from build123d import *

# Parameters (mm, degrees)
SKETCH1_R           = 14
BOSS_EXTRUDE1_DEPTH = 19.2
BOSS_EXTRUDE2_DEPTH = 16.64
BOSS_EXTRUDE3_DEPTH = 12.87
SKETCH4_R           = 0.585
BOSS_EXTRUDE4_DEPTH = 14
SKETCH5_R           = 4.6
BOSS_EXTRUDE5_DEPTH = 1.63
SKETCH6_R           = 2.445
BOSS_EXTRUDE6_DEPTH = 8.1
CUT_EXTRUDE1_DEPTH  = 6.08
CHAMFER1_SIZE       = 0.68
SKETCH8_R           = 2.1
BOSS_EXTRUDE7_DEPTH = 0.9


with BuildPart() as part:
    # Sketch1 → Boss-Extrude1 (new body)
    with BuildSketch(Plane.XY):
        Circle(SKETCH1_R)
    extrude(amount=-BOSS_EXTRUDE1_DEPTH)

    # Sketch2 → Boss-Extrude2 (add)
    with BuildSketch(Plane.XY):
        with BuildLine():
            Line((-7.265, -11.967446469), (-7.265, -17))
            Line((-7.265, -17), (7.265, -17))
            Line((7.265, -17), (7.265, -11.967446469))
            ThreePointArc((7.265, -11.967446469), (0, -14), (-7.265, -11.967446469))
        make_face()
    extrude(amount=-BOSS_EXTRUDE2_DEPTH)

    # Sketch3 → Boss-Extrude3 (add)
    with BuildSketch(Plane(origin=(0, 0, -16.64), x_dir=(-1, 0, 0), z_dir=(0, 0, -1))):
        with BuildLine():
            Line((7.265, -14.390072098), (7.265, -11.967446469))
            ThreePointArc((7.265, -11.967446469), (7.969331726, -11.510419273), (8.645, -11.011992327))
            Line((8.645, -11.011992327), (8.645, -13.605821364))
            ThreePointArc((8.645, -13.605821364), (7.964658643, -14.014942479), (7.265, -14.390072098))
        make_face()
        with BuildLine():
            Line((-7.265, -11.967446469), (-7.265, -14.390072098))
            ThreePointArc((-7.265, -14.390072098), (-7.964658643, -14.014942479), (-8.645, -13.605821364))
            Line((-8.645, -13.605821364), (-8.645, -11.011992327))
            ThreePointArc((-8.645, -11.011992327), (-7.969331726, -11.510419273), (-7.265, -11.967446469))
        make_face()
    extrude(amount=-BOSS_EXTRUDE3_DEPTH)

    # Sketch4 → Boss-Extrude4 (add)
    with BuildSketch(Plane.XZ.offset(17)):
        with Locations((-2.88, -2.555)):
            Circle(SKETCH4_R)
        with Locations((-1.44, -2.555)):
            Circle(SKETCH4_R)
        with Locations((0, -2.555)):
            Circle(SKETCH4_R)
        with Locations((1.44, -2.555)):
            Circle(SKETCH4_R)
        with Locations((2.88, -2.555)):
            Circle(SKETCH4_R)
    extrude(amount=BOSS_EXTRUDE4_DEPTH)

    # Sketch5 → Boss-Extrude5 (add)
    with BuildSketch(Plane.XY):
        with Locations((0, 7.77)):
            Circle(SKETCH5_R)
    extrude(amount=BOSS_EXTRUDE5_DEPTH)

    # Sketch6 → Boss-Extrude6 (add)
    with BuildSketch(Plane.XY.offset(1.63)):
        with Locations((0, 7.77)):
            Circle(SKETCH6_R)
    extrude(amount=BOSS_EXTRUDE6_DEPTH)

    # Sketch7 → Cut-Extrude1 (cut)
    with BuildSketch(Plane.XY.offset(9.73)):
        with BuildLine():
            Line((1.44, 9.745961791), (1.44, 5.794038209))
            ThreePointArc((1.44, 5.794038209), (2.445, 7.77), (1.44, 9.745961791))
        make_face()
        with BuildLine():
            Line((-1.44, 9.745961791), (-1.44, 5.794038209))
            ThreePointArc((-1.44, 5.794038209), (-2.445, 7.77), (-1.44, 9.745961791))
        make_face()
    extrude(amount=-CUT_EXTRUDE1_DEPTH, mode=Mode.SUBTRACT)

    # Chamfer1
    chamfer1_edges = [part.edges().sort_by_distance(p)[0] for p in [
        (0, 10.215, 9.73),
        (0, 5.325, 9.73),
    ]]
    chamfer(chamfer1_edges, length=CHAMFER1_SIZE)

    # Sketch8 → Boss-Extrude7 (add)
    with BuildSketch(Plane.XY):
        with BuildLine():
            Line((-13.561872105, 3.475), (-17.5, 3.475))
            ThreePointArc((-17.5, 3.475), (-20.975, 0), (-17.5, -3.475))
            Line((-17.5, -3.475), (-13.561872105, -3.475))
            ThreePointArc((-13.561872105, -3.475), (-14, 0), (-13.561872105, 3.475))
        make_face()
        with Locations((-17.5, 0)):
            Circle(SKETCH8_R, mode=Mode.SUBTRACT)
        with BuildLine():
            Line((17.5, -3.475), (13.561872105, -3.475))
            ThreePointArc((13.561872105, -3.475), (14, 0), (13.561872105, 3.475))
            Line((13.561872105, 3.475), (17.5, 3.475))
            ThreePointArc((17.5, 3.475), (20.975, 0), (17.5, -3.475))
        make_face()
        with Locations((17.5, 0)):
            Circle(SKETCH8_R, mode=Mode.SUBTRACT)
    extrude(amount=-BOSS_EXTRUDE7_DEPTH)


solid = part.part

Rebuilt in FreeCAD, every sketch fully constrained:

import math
import FreeCAD as App
import Part
import Sketcher
Q = App.Units.Quantity


def edges_at(feature, points):
    """Names of the edges that pass closest to the given points."""
    edges = feature.Shape.Edges
    near = lambda p: min(range(len(edges)), key=lambda i: edges[i].distToShape(Part.Vertex(*p))[0])
    return sorted({f"Edge{near(p) + 1}" for p in points})

doc = App.newDocument("Part")
body = doc.addObject("PartDesign::Body", "Body")

sketch1 = body.newObject("Sketcher::SketchObject", "Sketch")
sketch1.AttachmentSupport = (doc.getObject("XY_Plane"), [""])
sketch1.MapMode = "FlatFace"
sketch1.addGeometry(Part.Circle(App.Vector(0, 0, 0), App.Vector(0, 0, 1), 14), False)
sketch1.addConstraint([
    Sketcher.Constraint("Coincident", 0, 3, -1, 1),
    Sketcher.Constraint("Diameter", 0, Q("28 mm")),
])
pad1 = body.newObject("PartDesign::Pad", "Pad")
pad1.Profile = sketch1
pad1.Length = 19.2
pad1.Reversed = True

sketch2 = body.newObject("Sketcher::SketchObject", "Sketch001")
sketch2.AttachmentSupport = (doc.getObject("XY_Plane"), [""])
sketch2.MapMode = "FlatFace"
sketch2.addGeometry([
    Part.LineSegment(App.Vector(-7, -12, 0), App.Vector(-7, -17, 0)),
    Part.LineSegment(App.Vector(-7, -17, 0), App.Vector(7, -17, 0)),
    Part.LineSegment(App.Vector(7, -17, 0), App.Vector(7, -12, 0)),
    Part.ArcOfCircle(Part.Circle(App.Vector(0, 0, 0), App.Vector(0, 0, 1), 14), math.radians(-121), math.radians(-59)),
], False)
sketch2.addConstraint([
    Sketcher.Constraint("Coincident", 0, 2, 1, 1),
    Sketcher.Constraint("Coincident", 1, 2, 2, 1),
    Sketcher.Constraint("Coincident", 2, 2, 3, 2),
    Sketcher.Constraint("Coincident", 3, 1, 0, 1),
    Sketcher.Constraint("Vertical", 0),
    Sketcher.Constraint("Horizontal", 1),
    Sketcher.Constraint("Vertical", 2),
    Sketcher.Constraint("Coincident", 3, 3, -1, 1),
    Sketcher.Constraint("Horizontal", 2, 2, 3, 1),
    Sketcher.Constraint("Radius", 3, Q("14 mm")),
    Sketcher.Constraint("DistanceY", 0, 2, -1, 1, Q("17 mm")),
    Sketcher.Constraint("DistanceX", 1, 1, 1, 2, Q("14.53 mm")),
])
pad2 = body.newObject("PartDesign::Pad", "Pad001")
pad2.Profile = sketch2
pad2.Length = 16.64
pad2.Reversed = True

sketch3 = body.newObject("Sketcher::SketchObject", "Sketch002")
sketch3.AttachmentSupport = (doc.getObject("XY_Plane"), [""])
sketch3.MapMode = "FlatFace"
sketch3.AttachmentOffset = App.Placement(App.Vector(0, 0, -16.64), App.Rotation())
sketch3.addGeometry([
    Part.LineSegment(App.Vector(-7.3, -12, 0), App.Vector(-7.3, -14.4, 0)),
    Part.ArcOfCircle(Part.Circle(App.Vector(0, 0, 0), App.Vector(0, 0, 1), 16.1), math.radians(-122.43), math.radians(-116.79)),
    Part.LineSegment(App.Vector(-8.6, -13.6, 0), App.Vector(-8.6, -11, 0)),
    Part.ArcOfCircle(Part.Circle(App.Vector(0, 0, 0), App.Vector(0, 0, 1), 14), math.radians(-128.13), math.radians(-121.26)),
    Part.LineSegment(App.Vector(7.3, -14.4, 0), App.Vector(7.3, -12, 0)),
    Part.ArcOfCircle(Part.Circle(App.Vector(0, 0, 0), App.Vector(0, 0, 1), 14), math.radians(-58.74), math.radians(-51.87)),
    Part.LineSegment(App.Vector(8.6, -11, 0), App.Vector(8.6, -13.6, 0)),
    Part.ArcOfCircle(Part.Circle(App.Vector(0, 0, 0), App.Vector(0, 0, 1), 16.1), math.radians(-63.21), math.radians(-57.57)),
], False)
sketch3.addConstraint([
    Sketcher.Constraint("Coincident", 0, 2, 1, 2),
    Sketcher.Constraint("Coincident", 1, 1, 2, 1),
    Sketcher.Constraint("Coincident", 2, 2, 3, 1),
    Sketcher.Constraint("Coincident", 3, 2, 0, 1),
    Sketcher.Constraint("Coincident", 4, 2, 5, 1),
    Sketcher.Constraint("Coincident", 5, 2, 6, 1),
    Sketcher.Constraint("Coincident", 6, 2, 7, 2),
    Sketcher.Constraint("Coincident", 7, 1, 4, 1),
    Sketcher.Constraint("Vertical", 0),
    Sketcher.Constraint("Vertical", 2),
    Sketcher.Constraint("Vertical", 4),
    Sketcher.Constraint("Vertical", 6),
    Sketcher.Constraint("Coincident", 1, 3, -1, 1),
    Sketcher.Constraint("Coincident", 3, 3, -1, 1),
    Sketcher.Constraint("Coincident", 5, 3, -1, 1),
    Sketcher.Constraint("Coincident", 7, 3, -1, 1),
    Sketcher.Constraint("Equal", 3, 5),
    Sketcher.Constraint("Equal", 1, 7),
    Sketcher.Constraint("Horizontal", 3, 2, 4, 2),
    Sketcher.Constraint("Horizontal", 2, 2, 5, 2),
    Sketcher.Constraint("Radius", 3, Q("14 mm")),
    Sketcher.Constraint("Radius", 1, Q("16.12 mm")),
    Sketcher.Constraint("DistanceX", 1, 1, 0, 2, Q("1.38 mm")),
    Sketcher.Constraint("DistanceX", 3, 2, 4, 2, Q("14.53 mm")),
])
pad3 = body.newObject("PartDesign::Pad", "Pad002")
pad3.Profile = sketch3
pad3.Length = 12.87

sketch4 = body.newObject("Sketcher::SketchObject", "Sketch003")
sketch4.AttachmentSupport = (doc.getObject("XZ_Plane"), [""])
sketch4.MapMode = "FlatFace"
sketch4.AttachmentOffset = App.Placement(App.Vector(0, 0, 17), App.Rotation())
sketch4.addGeometry([
    Part.Circle(App.Vector(-2.9, -2.6, 0), App.Vector(0, 0, 1), 0.6),
    Part.Circle(App.Vector(-1.4, -2.6, 0), App.Vector(0, 0, 1), 0.6),
    Part.Circle(App.Vector(0, -2.6, 0), App.Vector(0, 0, 1), 0.6),
    Part.Circle(App.Vector(1.4, -2.6, 0), App.Vector(0, 0, 1), 0.6),
    Part.Circle(App.Vector(2.9, -2.6, 0), App.Vector(0, 0, 1), 0.6),
], False)
sketch4.addConstraint([
    Sketcher.Constraint("Equal", 0, 1),
    Sketcher.Constraint("Equal", 1, 2),
    Sketcher.Constraint("Equal", 2, 3),
    Sketcher.Constraint("Equal", 3, 4),
    Sketcher.Constraint("Symmetric", 1, 3, 3, 3, -2),
    Sketcher.Constraint("Symmetric", 0, 3, 4, 3, -2),
    Sketcher.Constraint("PointOnObject", 2, 3, -2),
    Sketcher.Constraint("Horizontal", 0, 3, 1, 3),
    Sketcher.Constraint("Horizontal", 1, 3, 2, 3),
    Sketcher.Constraint("Diameter", 0, Q("1.17 mm")),
    Sketcher.Constraint("DistanceX", 0, 3, -1, 1, Q("2.88 mm")),
    Sketcher.Constraint("DistanceX", 1, 3, -1, 1, Q("1.44 mm")),
    Sketcher.Constraint("DistanceY", 0, 3, -1, 1, Q("2.555 mm")),
])
pad4 = body.newObject("PartDesign::Pad", "Pad003")
pad4.Profile = sketch4
pad4.Length = 14

sketch5 = body.newObject("Sketcher::SketchObject", "Sketch004")
sketch5.AttachmentSupport = (doc.getObject("XY_Plane"), [""])
sketch5.MapMode = "FlatFace"
sketch5.addGeometry(Part.Circle(App.Vector(0, 7.8, 0), App.Vector(0, 0, 1), 4.6), False)
sketch5.addConstraint([
    Sketcher.Constraint("PointOnObject", 0, 3, -2),
    Sketcher.Constraint("Diameter", 0, Q("9.2 mm")),
    Sketcher.Constraint("DistanceY", -1, 1, 0, 3, Q("7.77 mm")),
])
pad5 = body.newObject("PartDesign::Pad", "Pad004")
pad5.Profile = sketch5
pad5.Length = 1.63

sketch6 = body.newObject("Sketcher::SketchObject", "Sketch005")
sketch6.AttachmentSupport = (doc.getObject("XY_Plane"), [""])
sketch6.MapMode = "FlatFace"
sketch6.AttachmentOffset = App.Placement(App.Vector(0, 0, 1.63), App.Rotation())
sketch6.addGeometry(Part.Circle(App.Vector(0, 7.8, 0), App.Vector(0, 0, 1), 2.4), False)
sketch6.addConstraint([
    Sketcher.Constraint("PointOnObject", 0, 3, -2),
    Sketcher.Constraint("Diameter", 0, Q("4.89 mm")),
    Sketcher.Constraint("DistanceY", -1, 1, 0, 3, Q("7.77 mm")),
])
pad6 = body.newObject("PartDesign::Pad", "Pad005")
pad6.Profile = sketch6
pad6.Length = 8.1

sketch7 = body.newObject("Sketcher::SketchObject", "Sketch006")
sketch7.AttachmentSupport = (doc.getObject("XY_Plane"), [""])
sketch7.MapMode = "FlatFace"
sketch7.AttachmentOffset = App.Placement(App.Vector(0, 0, 9.73), App.Rotation())
sketch7.addGeometry([
    Part.LineSegment(App.Vector(1.4, 9.7, 0), App.Vector(1.4, 5.8, 0)),
    Part.ArcOfCircle(Part.Circle(App.Vector(0, 7.8, 0), App.Vector(0, 0, 1), 2.4), math.radians(-54), math.radians(54)),
    Part.LineSegment(App.Vector(-1.4, 5.8, 0), App.Vector(-1.4, 9.7, 0)),
    Part.ArcOfCircle(Part.Circle(App.Vector(0, 7.8, 0), App.Vector(0, 0, 1), 2.4), math.radians(126), math.radians(234)),
], False)
sketch7.addConstraint([
    Sketcher.Constraint("Coincident", 0, 1, 1, 2),
    Sketcher.Constraint("Coincident", 1, 1, 0, 2),
    Sketcher.Constraint("Coincident", 2, 1, 3, 2),
    Sketcher.Constraint("Coincident", 3, 1, 2, 2),
    Sketcher.Constraint("Vertical", 0),
    Sketcher.Constraint("Vertical", 2),
    Sketcher.Constraint("Coincident", 3, 3, 1, 3),
    Sketcher.Constraint("Equal", 1, 3),
    Sketcher.Constraint("Symmetric", 1, 1, 2, 1, -2),
    Sketcher.Constraint("Radius", 1, Q("2.445 mm")),
    Sketcher.Constraint("DistanceY", -1, 1, 1, 3, Q("7.77 mm")),
    Sketcher.Constraint("DistanceX", -1, 1, 0, 1, Q("1.44 mm")),
])
pocket1 = body.newObject("PartDesign::Pocket", "Pocket")
pocket1.Profile = sketch7
pocket1.Length = 6.08
doc.recompute()

chamfer = body.newObject("PartDesign::Chamfer", "Chamfer")
chamfer.Base = (pocket1, edges_at(pocket1, [(0, 10.215, 9.73), (0, 5.325, 9.73)]))
chamfer.Size = 0.68

sketch8 = body.newObject("Sketcher::SketchObject", "Sketch007")
sketch8.AttachmentSupport = (doc.getObject("XY_Plane"), [""])
sketch8.MapMode = "FlatFace"
sketch8.addGeometry([
    Part.LineSegment(App.Vector(-13.6, 3.5, 0), App.Vector(-17.5, 3.5, 0)),
    Part.ArcOfCircle(Part.Circle(App.Vector(-17.5, 0, 0), App.Vector(0, 0, 1), 3.5), math.radians(90), math.radians(270)),
    Part.LineSegment(App.Vector(-17.5, -3.5, 0), App.Vector(-13.6, -3.5, 0)),
    Part.ArcOfCircle(Part.Circle(App.Vector(0, 0, 0), App.Vector(0, 0, 1), 14), math.radians(166), math.radians(194)),
    Part.Circle(App.Vector(-17.5, 0, 0), App.Vector(0, 0, 1), 2.1),
    Part.LineSegment(App.Vector(13.6, -3.5, 0), App.Vector(17.5, -3.5, 0)),
    Part.ArcOfCircle(Part.Circle(App.Vector(17.5, 0, 0), App.Vector(0, 0, 1), 3.5), math.radians(-90), math.radians(90)),
    Part.LineSegment(App.Vector(17.5, 3.5, 0), App.Vector(13.6, 3.5, 0)),
    Part.ArcOfCircle(Part.Circle(App.Vector(0, 0, 0), App.Vector(0, 0, 1), 14), math.radians(-14), math.radians(14)),
    Part.Circle(App.Vector(17.5, 0, 0), App.Vector(0, 0, 1), 2.1),
], False)
sketch8.addConstraint([
    Sketcher.Constraint("Tangent", 0, 2, 1, 1),
    Sketcher.Constraint("Tangent", 1, 2, 2, 1),
    Sketcher.Constraint("Coincident", 2, 2, 3, 2),
    Sketcher.Constraint("Coincident", 3, 1, 0, 1),
    Sketcher.Constraint("Tangent", 5, 2, 6, 1),
    Sketcher.Constraint("Tangent", 6, 2, 7, 1),
    Sketcher.Constraint("Coincident", 7, 2, 8, 2),
    Sketcher.Constraint("Coincident", 8, 1, 5, 1),
    Sketcher.Constraint("Horizontal", 0),
    Sketcher.Constraint("Horizontal", 2),
    Sketcher.Constraint("Horizontal", 5),
    Sketcher.Constraint("Horizontal", 7),
    Sketcher.Constraint("Coincident", 3, 3, -1, 1),
    Sketcher.Constraint("Coincident", 8, 3, -1, 1),
    Sketcher.Constraint("Coincident", 4, 3, 1, 3),
    Sketcher.Constraint("Coincident", 9, 3, 6, 3),
    Sketcher.Constraint("Equal", 1, 6),
    Sketcher.Constraint("Equal", 3, 8),
    Sketcher.Constraint("Equal", 4, 9),
    Sketcher.Constraint("Symmetric", 1, 3, 6, 3, -1, 1),
    Sketcher.Constraint("PointOnObject", 1, 3, -1),
    Sketcher.Constraint("Radius", 3, Q("14 mm")),
    Sketcher.Constraint("Diameter", 4, Q("4.2 mm")),
    Sketcher.Constraint("Radius", 1, Q("3.475 mm")),
    Sketcher.Constraint("DistanceX", 1, 3, 6, 3, Q("35 mm")),
])
pad7 = body.newObject("PartDesign::Pad", "Pad006")
pad7.Profile = sketch8
pad7.Length = 0.9
pad7.Reversed = True

doc.recompute()
